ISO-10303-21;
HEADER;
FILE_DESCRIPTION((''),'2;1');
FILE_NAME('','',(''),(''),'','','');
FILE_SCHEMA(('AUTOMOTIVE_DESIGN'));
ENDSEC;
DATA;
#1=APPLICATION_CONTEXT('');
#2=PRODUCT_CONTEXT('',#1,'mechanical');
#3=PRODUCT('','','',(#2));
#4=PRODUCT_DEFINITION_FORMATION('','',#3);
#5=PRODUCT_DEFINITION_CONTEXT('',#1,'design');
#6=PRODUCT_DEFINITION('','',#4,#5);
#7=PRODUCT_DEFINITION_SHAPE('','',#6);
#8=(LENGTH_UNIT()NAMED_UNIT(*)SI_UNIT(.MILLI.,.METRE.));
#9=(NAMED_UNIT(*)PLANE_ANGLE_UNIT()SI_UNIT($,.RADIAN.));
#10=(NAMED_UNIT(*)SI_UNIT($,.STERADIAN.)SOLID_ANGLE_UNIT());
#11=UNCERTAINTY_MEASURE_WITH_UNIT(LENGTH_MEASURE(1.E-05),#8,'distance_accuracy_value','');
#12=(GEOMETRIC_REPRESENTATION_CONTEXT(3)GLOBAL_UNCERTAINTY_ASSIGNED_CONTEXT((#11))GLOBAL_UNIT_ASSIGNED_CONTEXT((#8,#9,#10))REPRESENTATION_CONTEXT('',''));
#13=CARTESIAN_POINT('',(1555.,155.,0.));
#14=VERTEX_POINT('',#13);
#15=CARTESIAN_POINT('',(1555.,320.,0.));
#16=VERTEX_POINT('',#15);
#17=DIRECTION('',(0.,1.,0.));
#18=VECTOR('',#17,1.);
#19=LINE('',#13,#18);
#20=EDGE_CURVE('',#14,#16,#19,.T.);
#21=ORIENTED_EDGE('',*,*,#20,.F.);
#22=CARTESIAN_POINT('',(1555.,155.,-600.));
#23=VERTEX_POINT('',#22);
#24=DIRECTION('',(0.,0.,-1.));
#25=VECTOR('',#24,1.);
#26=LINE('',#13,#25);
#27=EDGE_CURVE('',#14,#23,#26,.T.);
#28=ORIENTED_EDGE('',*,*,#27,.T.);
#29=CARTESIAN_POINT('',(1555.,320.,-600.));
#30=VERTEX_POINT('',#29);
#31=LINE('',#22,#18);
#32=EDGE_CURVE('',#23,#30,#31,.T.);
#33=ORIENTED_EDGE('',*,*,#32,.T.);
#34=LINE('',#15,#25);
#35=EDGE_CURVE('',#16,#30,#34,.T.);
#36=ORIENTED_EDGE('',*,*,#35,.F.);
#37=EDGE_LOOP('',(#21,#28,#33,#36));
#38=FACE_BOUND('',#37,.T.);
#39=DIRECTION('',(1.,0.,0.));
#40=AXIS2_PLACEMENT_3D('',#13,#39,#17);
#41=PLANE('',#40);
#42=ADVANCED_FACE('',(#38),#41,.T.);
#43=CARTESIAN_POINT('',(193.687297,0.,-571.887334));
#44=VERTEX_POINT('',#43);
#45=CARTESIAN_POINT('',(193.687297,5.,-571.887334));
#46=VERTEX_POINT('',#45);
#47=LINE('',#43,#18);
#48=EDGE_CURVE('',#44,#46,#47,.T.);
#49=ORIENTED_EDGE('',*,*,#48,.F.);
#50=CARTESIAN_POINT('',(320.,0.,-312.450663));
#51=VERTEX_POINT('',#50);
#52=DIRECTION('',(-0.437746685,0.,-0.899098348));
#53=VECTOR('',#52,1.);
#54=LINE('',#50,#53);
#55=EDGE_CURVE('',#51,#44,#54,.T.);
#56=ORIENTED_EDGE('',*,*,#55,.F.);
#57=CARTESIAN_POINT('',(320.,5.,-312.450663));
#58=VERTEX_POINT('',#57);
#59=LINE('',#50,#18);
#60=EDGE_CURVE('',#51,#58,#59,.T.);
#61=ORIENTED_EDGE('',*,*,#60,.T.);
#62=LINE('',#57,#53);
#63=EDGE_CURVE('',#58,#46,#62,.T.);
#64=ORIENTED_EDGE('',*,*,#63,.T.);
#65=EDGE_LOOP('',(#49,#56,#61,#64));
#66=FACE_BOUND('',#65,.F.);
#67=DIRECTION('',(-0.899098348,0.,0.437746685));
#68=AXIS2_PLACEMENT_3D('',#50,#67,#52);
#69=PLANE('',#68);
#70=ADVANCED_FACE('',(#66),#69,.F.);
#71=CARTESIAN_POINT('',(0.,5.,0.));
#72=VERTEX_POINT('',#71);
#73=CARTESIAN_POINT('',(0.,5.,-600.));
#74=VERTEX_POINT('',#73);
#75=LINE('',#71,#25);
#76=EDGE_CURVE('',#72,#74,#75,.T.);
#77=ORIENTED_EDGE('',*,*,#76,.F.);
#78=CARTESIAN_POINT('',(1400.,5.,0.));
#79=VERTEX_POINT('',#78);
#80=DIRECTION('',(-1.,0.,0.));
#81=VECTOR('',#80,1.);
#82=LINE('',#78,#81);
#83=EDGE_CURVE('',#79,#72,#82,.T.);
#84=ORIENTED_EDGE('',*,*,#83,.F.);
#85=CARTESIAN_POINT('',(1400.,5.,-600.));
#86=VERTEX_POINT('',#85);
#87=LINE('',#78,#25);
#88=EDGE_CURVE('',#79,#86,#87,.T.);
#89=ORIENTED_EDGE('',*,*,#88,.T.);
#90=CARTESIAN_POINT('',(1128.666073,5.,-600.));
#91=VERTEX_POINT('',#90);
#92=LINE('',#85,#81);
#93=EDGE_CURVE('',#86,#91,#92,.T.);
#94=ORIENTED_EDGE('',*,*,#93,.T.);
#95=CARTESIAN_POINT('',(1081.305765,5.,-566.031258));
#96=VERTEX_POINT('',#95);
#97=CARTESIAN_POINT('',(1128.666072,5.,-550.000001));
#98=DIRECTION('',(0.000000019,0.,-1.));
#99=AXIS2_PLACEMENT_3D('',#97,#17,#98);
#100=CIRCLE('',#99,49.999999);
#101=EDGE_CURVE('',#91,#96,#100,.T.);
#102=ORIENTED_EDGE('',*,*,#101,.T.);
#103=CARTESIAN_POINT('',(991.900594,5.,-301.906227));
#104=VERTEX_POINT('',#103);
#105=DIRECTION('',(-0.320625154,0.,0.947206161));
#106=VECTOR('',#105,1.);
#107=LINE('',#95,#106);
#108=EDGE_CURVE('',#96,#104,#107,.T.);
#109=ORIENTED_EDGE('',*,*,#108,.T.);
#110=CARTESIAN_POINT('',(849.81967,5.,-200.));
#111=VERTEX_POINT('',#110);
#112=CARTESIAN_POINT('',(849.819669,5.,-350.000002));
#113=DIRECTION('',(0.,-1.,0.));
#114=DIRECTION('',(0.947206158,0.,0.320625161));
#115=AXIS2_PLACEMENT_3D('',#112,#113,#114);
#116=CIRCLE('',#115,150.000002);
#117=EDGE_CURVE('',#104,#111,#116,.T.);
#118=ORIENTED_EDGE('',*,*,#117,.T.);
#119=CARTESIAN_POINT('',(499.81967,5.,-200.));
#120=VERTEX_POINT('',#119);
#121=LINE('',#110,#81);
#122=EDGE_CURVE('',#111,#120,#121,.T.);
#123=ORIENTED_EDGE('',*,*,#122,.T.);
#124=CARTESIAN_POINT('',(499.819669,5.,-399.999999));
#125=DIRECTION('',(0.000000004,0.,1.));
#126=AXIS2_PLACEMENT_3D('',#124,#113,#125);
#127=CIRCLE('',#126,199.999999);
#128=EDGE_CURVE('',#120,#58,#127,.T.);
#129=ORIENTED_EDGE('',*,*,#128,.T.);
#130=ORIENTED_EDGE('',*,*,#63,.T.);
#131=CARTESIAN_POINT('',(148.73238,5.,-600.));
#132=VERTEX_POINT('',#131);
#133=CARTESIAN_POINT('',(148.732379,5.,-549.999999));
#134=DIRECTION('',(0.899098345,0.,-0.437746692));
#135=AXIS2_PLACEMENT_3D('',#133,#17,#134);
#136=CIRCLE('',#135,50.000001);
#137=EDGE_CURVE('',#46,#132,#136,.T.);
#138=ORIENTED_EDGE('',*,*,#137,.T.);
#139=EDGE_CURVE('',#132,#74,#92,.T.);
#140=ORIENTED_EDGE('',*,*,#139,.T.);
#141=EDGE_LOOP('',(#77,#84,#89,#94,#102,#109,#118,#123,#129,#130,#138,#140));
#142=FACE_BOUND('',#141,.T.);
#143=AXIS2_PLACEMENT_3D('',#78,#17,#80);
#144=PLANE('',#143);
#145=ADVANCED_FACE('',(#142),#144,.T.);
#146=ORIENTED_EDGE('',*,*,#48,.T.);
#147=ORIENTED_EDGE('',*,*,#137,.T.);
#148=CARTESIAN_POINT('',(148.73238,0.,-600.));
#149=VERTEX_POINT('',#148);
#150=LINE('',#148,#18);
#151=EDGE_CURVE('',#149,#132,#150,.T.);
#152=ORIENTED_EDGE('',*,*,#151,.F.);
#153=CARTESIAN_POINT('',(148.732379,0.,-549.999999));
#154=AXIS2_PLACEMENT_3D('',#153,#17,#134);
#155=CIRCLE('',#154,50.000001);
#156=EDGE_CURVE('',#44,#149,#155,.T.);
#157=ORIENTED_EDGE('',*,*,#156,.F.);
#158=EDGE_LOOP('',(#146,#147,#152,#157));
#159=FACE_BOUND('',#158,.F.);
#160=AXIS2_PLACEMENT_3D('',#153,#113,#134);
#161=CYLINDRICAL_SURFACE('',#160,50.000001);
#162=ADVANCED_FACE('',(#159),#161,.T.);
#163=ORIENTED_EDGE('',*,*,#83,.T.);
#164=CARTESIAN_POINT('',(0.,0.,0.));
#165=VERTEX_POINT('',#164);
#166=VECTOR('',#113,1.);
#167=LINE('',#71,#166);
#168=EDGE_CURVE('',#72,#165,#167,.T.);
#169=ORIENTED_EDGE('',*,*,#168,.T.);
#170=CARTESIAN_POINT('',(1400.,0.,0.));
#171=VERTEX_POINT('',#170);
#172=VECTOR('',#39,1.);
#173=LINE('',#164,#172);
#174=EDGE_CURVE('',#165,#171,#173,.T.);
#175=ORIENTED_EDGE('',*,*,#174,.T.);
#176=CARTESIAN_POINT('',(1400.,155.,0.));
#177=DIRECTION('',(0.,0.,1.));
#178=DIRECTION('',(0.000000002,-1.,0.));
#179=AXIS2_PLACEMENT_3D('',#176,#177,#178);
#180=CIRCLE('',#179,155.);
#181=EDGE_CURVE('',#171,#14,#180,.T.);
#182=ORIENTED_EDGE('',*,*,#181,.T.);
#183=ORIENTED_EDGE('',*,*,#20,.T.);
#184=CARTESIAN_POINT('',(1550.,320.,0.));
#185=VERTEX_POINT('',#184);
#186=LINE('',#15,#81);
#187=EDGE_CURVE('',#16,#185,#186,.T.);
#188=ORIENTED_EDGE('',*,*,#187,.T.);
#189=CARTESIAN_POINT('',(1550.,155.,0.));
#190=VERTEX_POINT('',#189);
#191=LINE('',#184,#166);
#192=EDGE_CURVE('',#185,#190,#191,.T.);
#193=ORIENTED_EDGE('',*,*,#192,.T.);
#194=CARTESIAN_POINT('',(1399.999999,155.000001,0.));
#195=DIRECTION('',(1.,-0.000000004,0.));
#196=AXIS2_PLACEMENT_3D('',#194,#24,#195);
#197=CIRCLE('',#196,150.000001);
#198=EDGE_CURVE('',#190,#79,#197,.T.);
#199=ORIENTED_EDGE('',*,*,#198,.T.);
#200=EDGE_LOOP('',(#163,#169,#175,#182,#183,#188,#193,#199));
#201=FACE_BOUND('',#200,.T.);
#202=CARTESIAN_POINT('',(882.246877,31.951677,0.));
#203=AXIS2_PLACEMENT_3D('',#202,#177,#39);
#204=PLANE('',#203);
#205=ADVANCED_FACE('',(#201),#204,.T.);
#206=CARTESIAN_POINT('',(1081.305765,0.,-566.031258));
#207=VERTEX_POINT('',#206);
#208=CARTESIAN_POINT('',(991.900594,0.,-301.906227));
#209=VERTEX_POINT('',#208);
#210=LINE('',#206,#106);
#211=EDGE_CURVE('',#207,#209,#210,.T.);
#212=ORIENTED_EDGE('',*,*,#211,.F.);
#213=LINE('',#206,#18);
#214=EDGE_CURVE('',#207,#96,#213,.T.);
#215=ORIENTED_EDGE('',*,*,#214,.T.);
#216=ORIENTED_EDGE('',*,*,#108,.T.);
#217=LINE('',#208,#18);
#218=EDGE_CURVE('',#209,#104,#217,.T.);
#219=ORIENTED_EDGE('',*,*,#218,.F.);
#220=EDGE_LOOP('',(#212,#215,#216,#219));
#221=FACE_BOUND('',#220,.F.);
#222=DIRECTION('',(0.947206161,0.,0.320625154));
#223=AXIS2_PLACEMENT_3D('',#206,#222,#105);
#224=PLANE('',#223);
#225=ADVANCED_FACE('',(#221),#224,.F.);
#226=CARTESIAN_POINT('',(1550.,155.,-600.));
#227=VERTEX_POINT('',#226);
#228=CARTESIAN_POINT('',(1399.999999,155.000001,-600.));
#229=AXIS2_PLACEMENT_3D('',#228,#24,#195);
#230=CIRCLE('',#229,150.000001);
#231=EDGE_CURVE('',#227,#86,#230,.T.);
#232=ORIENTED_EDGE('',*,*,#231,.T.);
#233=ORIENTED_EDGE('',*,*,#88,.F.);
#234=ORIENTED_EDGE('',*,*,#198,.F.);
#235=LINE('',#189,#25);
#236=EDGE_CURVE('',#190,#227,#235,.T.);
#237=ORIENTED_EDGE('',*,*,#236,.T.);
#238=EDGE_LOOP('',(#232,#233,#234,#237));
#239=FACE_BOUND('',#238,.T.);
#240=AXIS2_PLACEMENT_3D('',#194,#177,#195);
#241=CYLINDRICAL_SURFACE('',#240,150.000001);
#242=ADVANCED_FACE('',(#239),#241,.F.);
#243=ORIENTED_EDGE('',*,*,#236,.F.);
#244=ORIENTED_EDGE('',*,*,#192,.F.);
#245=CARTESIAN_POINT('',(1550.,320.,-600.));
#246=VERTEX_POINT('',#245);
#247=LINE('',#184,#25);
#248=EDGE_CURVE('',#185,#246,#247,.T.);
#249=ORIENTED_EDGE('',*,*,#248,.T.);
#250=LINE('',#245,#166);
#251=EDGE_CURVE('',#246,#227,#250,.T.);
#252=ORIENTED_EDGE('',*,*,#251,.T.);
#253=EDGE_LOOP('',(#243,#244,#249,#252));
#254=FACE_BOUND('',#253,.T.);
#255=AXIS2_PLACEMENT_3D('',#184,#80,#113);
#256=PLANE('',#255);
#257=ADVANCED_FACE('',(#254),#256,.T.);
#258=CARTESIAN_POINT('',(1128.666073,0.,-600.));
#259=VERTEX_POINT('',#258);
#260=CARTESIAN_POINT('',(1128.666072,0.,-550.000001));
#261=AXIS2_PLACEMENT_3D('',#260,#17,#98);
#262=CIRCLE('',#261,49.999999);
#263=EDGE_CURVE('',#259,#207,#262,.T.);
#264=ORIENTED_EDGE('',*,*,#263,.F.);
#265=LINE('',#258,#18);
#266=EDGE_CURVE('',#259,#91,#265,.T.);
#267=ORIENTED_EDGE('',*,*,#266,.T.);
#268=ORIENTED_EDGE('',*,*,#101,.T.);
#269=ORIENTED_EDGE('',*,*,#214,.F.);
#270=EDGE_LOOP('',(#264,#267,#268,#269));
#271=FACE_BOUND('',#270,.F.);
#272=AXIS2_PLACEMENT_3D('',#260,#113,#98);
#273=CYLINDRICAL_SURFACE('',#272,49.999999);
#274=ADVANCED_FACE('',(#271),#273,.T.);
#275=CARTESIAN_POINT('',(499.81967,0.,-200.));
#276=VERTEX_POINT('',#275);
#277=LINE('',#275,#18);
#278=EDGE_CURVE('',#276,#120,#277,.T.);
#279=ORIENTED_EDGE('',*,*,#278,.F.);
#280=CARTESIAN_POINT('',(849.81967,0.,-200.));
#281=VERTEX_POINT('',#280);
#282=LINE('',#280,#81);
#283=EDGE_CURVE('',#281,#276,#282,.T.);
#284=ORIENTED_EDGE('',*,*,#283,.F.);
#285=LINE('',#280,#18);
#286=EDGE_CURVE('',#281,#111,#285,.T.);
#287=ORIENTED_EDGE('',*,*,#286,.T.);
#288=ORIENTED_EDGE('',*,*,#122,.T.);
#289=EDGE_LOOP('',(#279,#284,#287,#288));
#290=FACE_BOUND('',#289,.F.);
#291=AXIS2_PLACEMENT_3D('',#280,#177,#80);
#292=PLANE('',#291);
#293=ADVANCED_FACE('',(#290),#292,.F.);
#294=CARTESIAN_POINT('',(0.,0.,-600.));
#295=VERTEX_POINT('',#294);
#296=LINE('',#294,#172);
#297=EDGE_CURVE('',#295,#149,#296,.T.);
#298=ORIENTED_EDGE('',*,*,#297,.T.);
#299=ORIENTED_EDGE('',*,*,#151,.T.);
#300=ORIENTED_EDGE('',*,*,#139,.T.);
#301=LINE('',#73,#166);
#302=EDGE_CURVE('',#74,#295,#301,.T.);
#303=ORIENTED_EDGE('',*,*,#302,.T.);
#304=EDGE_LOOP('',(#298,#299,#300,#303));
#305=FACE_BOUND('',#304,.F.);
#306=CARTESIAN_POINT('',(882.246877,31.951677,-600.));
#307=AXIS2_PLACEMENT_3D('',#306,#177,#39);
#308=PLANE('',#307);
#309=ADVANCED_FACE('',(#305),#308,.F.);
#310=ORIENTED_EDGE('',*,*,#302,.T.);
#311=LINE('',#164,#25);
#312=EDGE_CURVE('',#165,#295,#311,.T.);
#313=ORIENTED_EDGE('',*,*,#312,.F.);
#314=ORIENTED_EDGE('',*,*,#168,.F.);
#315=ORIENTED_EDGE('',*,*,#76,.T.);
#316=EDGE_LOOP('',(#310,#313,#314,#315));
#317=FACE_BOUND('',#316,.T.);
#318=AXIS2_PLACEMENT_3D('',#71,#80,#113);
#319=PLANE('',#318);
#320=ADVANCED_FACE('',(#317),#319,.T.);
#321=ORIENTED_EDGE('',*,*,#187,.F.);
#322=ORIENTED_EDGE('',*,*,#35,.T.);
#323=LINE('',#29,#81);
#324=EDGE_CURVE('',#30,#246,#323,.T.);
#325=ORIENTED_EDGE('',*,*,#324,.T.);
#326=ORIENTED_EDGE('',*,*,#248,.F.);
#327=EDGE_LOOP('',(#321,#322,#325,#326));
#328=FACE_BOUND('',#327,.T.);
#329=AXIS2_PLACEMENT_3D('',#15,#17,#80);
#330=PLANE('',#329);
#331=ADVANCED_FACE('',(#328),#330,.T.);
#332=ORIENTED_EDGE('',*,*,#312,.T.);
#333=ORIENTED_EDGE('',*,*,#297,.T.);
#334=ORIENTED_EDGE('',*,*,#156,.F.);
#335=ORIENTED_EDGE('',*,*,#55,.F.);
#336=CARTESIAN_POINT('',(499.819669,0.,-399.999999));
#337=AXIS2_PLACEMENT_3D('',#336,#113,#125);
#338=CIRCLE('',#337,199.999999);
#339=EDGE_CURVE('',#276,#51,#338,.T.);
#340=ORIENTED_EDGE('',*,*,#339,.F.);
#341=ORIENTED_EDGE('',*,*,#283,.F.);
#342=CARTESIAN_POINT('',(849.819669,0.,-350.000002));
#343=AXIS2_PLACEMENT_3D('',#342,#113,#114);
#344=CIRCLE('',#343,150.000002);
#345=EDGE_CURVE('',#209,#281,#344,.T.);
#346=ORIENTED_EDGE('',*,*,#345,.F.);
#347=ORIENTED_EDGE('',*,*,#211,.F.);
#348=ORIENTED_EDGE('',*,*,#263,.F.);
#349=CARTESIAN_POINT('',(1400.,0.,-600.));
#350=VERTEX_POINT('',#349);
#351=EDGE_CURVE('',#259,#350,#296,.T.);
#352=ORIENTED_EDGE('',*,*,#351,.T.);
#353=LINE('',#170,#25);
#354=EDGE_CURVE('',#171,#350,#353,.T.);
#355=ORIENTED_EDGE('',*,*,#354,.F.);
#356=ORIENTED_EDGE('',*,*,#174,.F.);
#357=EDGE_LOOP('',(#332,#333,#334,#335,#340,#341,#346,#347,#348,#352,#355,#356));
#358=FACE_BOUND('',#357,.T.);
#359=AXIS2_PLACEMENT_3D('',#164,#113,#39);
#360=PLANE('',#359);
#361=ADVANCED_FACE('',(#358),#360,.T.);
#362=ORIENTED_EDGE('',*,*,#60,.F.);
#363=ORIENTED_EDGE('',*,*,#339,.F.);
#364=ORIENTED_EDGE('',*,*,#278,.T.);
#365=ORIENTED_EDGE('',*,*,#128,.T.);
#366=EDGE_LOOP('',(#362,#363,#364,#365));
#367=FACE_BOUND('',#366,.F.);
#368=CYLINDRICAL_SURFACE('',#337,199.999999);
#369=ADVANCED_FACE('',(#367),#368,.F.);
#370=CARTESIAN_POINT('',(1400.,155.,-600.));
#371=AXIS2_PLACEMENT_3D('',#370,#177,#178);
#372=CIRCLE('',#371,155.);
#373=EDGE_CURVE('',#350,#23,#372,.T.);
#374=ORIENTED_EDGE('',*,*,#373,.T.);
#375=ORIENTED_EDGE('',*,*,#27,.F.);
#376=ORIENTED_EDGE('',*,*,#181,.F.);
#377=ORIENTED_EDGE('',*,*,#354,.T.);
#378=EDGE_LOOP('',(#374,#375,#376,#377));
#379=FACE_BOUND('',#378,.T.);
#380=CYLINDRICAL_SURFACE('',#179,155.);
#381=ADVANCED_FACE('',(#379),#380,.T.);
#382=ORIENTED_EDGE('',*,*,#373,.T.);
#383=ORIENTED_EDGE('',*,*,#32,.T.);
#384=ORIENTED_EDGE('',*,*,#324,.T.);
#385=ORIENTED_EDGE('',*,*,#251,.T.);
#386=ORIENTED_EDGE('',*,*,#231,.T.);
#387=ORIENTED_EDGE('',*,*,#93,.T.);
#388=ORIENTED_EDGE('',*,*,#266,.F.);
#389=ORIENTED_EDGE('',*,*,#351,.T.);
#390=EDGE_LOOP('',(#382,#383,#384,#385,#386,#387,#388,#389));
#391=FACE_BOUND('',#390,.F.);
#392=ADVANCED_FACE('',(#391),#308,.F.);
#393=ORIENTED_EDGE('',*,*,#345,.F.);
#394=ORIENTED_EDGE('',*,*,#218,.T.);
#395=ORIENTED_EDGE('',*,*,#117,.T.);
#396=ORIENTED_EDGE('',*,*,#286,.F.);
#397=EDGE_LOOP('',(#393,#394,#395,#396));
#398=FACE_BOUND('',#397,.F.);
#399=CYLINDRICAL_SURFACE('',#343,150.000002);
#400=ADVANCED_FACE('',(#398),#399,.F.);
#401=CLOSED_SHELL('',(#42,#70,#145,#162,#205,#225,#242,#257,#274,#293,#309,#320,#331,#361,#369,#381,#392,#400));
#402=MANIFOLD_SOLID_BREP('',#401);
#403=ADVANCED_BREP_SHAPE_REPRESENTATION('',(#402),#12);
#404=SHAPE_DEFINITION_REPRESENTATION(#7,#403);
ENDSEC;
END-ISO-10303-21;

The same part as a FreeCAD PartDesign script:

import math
import FreeCAD as App
import Part
import Sketcher
Q = App.Units.Quantity

doc = App.newDocument("Part")
params = doc.addObject("Spreadsheet::Sheet", "Params")
for row, (alias, value) in enumerate([
    ("sketch1_radius", "155 mm"),
    ("sketch1_radius2", "150.000001 mm"),
    ("sketch1_width", "1400 mm"),
    ("sketch1_height", "165 mm"),
    ("pad1_length", "600 mm"),
    ("sketch2_radius", "50.000001 mm"),
    ("sketch2_radius2", "49.999999 mm"),
    ("sketch2_radius3", "150.000002 mm"),
    ("sketch2_radius4", "199.999999 mm"),
    ("sketch2_width", "350 mm"),
    ("pocket1_length", "5 mm"),
], start=1):
    params.set(f"A{row}", alias)
    params.set(f"B{row}", "=" + value)
    params.setAlias(f"B{row}", alias)

body = doc.addObject("PartDesign::Body", "Body")

# Sketch on XY plane
sketch1 = doc.addObject("Sketcher::SketchObject", "Sketch")
body.addObject(sketch1)
sketch1.AttachmentSupport = (doc.XY_Plane, [""])
sketch1.MapMode = "FlatFace"
sketch1.addGeometry([
    Part.LineSegment(App.Vector(0, 5, 0), App.Vector(0, 0, 0)),  # 0
    Part.LineSegment(App.Vector(0, 0, 0), App.Vector(1400, 0, 0)),  # 1
    Part.ArcOfCircle(Part.Circle(App.Vector(1400, 155, 0), App.Vector(0, 0, 1), 155), math.radians(-90), math.radians(0)),  # 2
    Part.LineSegment(App.Vector(1555, 155, 0), App.Vector(1555, 320, 0)),  # 3
    Part.LineSegment(App.Vector(1555, 320, 0), App.Vector(1550, 320, 0)),  # 4
    Part.LineSegment(App.Vector(1550, 320, 0), App.Vector(1550, 155, 0)),  # 5
    Part.ArcOfCircle(Part.Circle(App.Vector(1399.999999, 155.000001, 0), App.Vector(0, 0, 1), 150.000001), math.radians(-90), math.radians(0)),  # 6
    Part.LineSegment(App.Vector(1400, 5, 0), App.Vector(0, 5, 0)),  # 7
], False)
sketch1.addConstraint([
    Sketcher.Constraint("Coincident", 0, 2, 1, 1),
    Sketcher.Constraint("Tangent", 1, 2, 2, 1),
    Sketcher.Constraint("Tangent", 2, 2, 3, 1),
    Sketcher.Constraint("Coincident", 3, 2, 4, 1),
    Sketcher.Constraint("Coincident", 4, 2, 5, 1),
    Sketcher.Constraint("Tangent", 5, 2, 6, 2),
    Sketcher.Constraint("Tangent", 6, 1, 7, 1),
    Sketcher.Constraint("Coincident", 7, 2, 0, 1),
    Sketcher.Constraint("Vertical", 0),
    Sketcher.Constraint("Horizontal", 1),
    Sketcher.Constraint("Vertical", 3),
    Sketcher.Constraint("Horizontal", 4),
    Sketcher.Constraint("Vertical", 5),
    Sketcher.Constraint("Horizontal", 7),
    Sketcher.Constraint("Coincident", 0, 2, -1, 1),
    Sketcher.Constraint("Coincident", 6, 3, 2, 3),
    Sketcher.Constraint("Radius", 2, Q("155 mm")),
    Sketcher.Constraint("Radius", 6, Q("150.000001 mm")),
    Sketcher.Constraint("DistanceX", 1, 1, 1, 2, Q("1400 mm")),
    Sketcher.Constraint("DistanceY", 3, 1, 3, 2, Q("165 mm")),
])
sketch1.setExpression("Constraints[16]", "Params.sketch1_radius")
sketch1.setExpression("Constraints[17]", "Params.sketch1_radius2")
sketch1.setExpression("Constraints[18]", "Params.sketch1_width")
sketch1.setExpression("Constraints[19]", "Params.sketch1_height")
pad1 = doc.addObject("PartDesign::Pad", "Pad")
body.addObject(pad1)
pad1.Profile = sketch1
pad1.setExpression("Length", "Params.pad1_length")
pad1.Reversed = True

# Sketch on XZ plane
sketch2 = doc.addObject("Sketcher::SketchObject", "Sketch001")
body.addObject(sketch2)
sketch2.AttachmentSupport = (doc.XZ_Plane, [""])
sketch2.MapMode = "FlatFace"
sketch2.addGeometry([
    Part.LineSegment(App.Vector(320, -312.450663, 0), App.Vector(193.687297, -571.887334, 0)),  # 0
    Part.ArcOfCircle(Part.Circle(App.Vector(148.732379, -549.999999, 0), App.Vector(0, 0, 1), 50.000001), math.radians(-89.999999), math.radians(-25.960199)),  # 1
    Part.LineSegment(App.Vector(148.73238, -600, 0), App.Vector(1128.666073, -600, 0)),  # 2
    Part.ArcOfCircle(Part.Circle(App.Vector(1128.666072, -550.000001, 0), App.Vector(0, 0, 1), 49.999999), math.radians(-161.299265), math.radians(-89.999999)),  # 3
    Part.LineSegment(App.Vector(1081.305765, -566.031258, 0), App.Vector(991.900594, -301.906227, 0)),  # 4
    Part.ArcOfCircle(Part.Circle(App.Vector(849.819669, -350.000002, 0), App.Vector(0, 0, 1), 150.000002), math.radians(18.700736), math.radians(90)),  # 5
    Part.LineSegment(App.Vector(849.81967, -200, 0), App.Vector(499.81967, -200, 0)),  # 6
    Part.ArcOfCircle(Part.Circle(App.Vector(499.819669, -399.999999, 0), App.Vector(0, 0, 1), 199.999999), math.radians(90), math.radians(154.039801)),  # 7
], False)
sketch2.addConstraint([
    Sketcher.Constraint("Tangent", 0, 2, 1, 2),
    Sketcher.Constraint("Tangent", 1, 1, 2, 1),
    Sketcher.Constraint("Tangent", 2, 2, 3, 2),
    Sketcher.Constraint("Tangent", 3, 1, 4, 1),
    Sketcher.Constraint("Tangent", 4, 2, 5, 1),
    Sketcher.Constraint("Tangent", 5, 2, 6, 1),
    Sketcher.Constraint("Tangent", 6, 2, 7, 1),
    Sketcher.Constraint("Tangent", 7, 2, 0, 1),
    Sketcher.Constraint("Horizontal", 2),
    Sketcher.Constraint("Horizontal", 6),
    Sketcher.Constraint("Radius", 1, Q("50.000001 mm")),
    Sketcher.Constraint("Radius", 3, Q("49.999999 mm")),
    Sketcher.Constraint("Radius", 5, Q("150.000002 mm")),
    Sketcher.Constraint("Radius", 7, Q("199.999999 mm")),
    Sketcher.Constraint("DistanceX", 6, 2, 6, 1, Q("350 mm")),
    Sketcher.Constraint("DistanceY", 1, 3, -1, 1, Q("549.999999 mm")),
    Sketcher.Constraint("DistanceY", 5, 3, -1, 1, Q("350.000002 mm")),
    Sketcher.Constraint("DistanceX", -1, 1, 7, 2, Q("320 mm")),
    Sketcher.Constraint("Distance", 0, Q("288.552049 mm")),
    Sketcher.Constraint("DistanceX", 2, 1, 2, 2, Q("979.933693 mm")),
])
sketch2.setExpression("Constraints[10]", "Params.sketch2_radius")
sketch2.setExpression("Constraints[11]", "Params.sketch2_radius2")
sketch2.setExpression("Constraints[12]", "Params.sketch2_radius3")
sketch2.setExpression("Constraints[13]", "Params.sketch2_radius4")
sketch2.setExpression("Constraints[14]", "Params.sketch2_width")
pocket1 = doc.addObject("PartDesign::Pocket", "Pocket")
body.addObject(pocket1)
pocket1.Profile = sketch2
pocket1.setExpression("Length", "Params.pocket1_length")

doc.recompute()
